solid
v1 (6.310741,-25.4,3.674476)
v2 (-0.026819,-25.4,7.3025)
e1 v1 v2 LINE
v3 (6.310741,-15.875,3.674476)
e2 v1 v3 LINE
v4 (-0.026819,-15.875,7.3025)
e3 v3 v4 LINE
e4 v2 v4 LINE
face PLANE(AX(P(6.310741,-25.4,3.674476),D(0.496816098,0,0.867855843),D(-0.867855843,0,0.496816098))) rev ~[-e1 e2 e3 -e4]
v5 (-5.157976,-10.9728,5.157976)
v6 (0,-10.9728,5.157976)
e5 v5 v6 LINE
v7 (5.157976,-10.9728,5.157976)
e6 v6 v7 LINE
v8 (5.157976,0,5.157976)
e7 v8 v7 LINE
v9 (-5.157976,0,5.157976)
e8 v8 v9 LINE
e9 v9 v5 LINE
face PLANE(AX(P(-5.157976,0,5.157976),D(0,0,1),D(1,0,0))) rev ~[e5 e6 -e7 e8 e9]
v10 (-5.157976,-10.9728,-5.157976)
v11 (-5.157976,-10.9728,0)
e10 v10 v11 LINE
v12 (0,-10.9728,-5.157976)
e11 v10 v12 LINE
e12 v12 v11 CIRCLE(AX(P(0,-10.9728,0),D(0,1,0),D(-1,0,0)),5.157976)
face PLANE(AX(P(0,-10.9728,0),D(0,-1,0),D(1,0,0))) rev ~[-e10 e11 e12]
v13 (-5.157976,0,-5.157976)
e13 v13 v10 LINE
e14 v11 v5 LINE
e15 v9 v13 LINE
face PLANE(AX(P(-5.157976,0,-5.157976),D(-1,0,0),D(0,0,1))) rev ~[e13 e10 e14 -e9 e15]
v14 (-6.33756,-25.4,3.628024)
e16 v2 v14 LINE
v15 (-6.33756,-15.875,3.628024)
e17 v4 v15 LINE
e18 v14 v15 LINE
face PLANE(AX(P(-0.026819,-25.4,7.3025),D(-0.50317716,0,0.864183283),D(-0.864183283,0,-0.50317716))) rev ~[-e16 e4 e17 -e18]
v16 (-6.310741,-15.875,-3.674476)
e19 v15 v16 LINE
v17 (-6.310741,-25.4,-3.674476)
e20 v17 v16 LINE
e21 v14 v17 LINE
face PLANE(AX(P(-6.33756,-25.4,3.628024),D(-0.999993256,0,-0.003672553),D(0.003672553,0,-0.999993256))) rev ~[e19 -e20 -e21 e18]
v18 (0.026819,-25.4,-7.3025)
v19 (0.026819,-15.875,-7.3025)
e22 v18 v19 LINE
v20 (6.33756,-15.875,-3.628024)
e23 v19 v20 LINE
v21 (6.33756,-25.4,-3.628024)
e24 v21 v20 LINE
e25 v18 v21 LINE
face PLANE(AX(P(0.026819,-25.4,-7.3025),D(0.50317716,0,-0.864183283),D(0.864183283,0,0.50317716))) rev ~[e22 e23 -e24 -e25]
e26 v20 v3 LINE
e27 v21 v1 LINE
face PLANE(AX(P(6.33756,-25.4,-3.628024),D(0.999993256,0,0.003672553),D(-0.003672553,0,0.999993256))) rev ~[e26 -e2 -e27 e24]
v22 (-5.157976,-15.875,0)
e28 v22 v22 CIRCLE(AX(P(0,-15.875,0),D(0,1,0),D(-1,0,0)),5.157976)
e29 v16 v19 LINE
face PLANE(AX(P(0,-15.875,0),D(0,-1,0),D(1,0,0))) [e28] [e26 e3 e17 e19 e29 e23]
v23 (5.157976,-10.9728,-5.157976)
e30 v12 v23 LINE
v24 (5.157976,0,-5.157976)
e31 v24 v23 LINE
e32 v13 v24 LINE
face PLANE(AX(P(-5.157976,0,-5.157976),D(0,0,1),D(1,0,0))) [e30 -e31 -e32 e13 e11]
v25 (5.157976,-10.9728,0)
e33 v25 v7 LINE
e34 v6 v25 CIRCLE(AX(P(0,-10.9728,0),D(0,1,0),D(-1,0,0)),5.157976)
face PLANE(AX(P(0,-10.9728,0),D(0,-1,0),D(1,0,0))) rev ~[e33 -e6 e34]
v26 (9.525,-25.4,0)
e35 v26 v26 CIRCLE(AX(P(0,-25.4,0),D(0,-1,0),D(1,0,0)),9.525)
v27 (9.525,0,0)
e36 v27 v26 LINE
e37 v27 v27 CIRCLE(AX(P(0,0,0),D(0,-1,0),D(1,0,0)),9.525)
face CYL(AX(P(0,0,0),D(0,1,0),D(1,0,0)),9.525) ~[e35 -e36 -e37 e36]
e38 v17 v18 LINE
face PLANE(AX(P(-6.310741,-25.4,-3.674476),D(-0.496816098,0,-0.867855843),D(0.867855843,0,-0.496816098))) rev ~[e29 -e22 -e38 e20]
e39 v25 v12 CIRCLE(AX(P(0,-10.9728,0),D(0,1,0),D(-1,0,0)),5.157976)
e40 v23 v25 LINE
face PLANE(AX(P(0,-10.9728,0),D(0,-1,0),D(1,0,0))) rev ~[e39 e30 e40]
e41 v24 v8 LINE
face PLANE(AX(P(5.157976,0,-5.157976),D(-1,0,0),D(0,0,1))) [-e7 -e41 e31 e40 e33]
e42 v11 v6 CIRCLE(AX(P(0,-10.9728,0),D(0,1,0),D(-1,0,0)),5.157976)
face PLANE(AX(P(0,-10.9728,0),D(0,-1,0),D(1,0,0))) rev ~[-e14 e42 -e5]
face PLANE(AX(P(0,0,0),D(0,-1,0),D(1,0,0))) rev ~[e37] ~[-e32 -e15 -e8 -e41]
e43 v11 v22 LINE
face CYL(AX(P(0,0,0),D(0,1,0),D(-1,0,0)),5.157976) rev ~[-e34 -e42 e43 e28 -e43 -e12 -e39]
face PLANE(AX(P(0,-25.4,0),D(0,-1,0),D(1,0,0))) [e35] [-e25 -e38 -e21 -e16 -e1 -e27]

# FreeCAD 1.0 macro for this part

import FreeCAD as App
import Part
import Sketcher

V = App.Vector
Q = App.Units.Quantity

doc = App.newDocument("Part")
params = doc.addObject("Spreadsheet::Sheet", "Params")
for row, (alias, value) in enumerate([
    ("sketch1_diameter", "0.75 in"),
    ("pad1_length", "1 in"),
    ("pocket1_length", "0.375 in"),
    ("pocket2_length", "0.432 in"),
], start=1):
    params.set(f"A{row}", alias)
    params.set(f"B{row}", "=" + value)
    params.setAlias(f"B{row}", alias)

body = doc.addObject("PartDesign::Body", "Body")

# Sketch on XZ plane
sketch1 = body.newObject("Sketcher::SketchObject", "Sketch")
sketch1.AttachmentSupport = (doc.getObject("XZ_Plane"), [""])
sketch1.MapMode = "FlatFace"
sketch1.addGeometry(Part.Circle(V(0, 0, 0), V(0, 0, 1), 9.525), False)
sketch1.addConstraint(Sketcher.Constraint("Coincident", 0, 3, -1, 1))
sketch1.addConstraint(Sketcher.Constraint("Diameter", 0, Q("0.75 in")))
sketch1.setExpression("Constraints[1]", "Params.sketch1_diameter")
pad1 = body.newObject("PartDesign::Pad", "Pad")
pad1.Profile = sketch1
pad1.setExpression("Length", "Params.pad1_length")

# Sketch on XZ plane
sketch2 = body.newObject("Sketcher::SketchObject", "Sketch001")
sketch2.AttachmentSupport = (doc.getObject("XZ_Plane"), [""])
sketch2.MapMode = "FlatFace"
sketch2.AttachmentOffset = App.Placement(V(0, 0, 1 * 25.4), App.Rotation())
sketch2.addGeometry(Part.LineSegment(V(6.310741, 3.674476, 0), V(-0.026819, 7.3025, 0)), False)
sketch2.addGeometry(Part.LineSegment(V(-0.026819, 7.3025, 0), V(-6.33756, 3.628024, 0)), False)
sketch2.addGeometry(Part.LineSegment(V(-6.33756, 3.628024, 0), V(-6.310741, -3.674476, 0)), False)
sketch2.addGeometry(Part.LineSegment(V(-6.310741, -3.674476, 0), V(0.026819, -7.3025, 0)), False)
sketch2.addGeometry(Part.LineSegment(V(0.026819, -7.3025, 0), V(6.33756, -3.628024, 0)), False)
sketch2.addGeometry(Part.LineSegment(V(6.33756, -3.628024, 0), V(6.310741, 3.674476, 0)), False)
sketch2.addConstraint(Sketcher.Constraint("Coincident", 0, 2, 1, 1))
sketch2.addConstraint(Sketcher.Constraint("Coincident", 1, 2, 2, 1))
sketch2.addConstraint(Sketcher.Constraint("Coincident", 2, 2, 3, 1))
sketch2.addConstraint(Sketcher.Constraint("Coincident", 3, 2, 4, 1))
sketch2.addConstraint(Sketcher.Constraint("Coincident", 4, 2, 5, 1))
sketch2.addConstraint(Sketcher.Constraint("Coincident", 5, 2, 0, 1))
sketch2.addConstraint(Sketcher.Constraint("Symmetric", 0, 2, 3, 2, -1, 1))
sketch2.addConstraint(Sketcher.Constraint("Symmetric", 1, 2, 4, 2, -1, 1))
sketch2.addConstraint(Sketcher.Constraint("Symmetric", 2, 2, 5, 2, -1, 1))
sketch2.addConstraint(Sketcher.Constraint("Equal", 0, 1))
sketch2.addConstraint(Sketcher.Constraint("Equal", 1, 2))
sketch2.addConstraint(Sketcher.Constraint("DistanceY", 3, 2, 0, 2, Q("0.575 in")))
sketch2.addConstraint(Sketcher.Constraint("DistanceY", 2, 2, 1, 2, Q("0.2875 in")))
sketch2.addConstraint(Sketcher.Constraint("DistanceX", 2, 2, 4, 2, 12.648301))
sketch2.addConstraint(Sketcher.Constraint("DistanceX", 0, 2, -1, 1, 0.026819))
pocket1 = body.newObject("PartDesign::Pocket", "Pocket")
pocket1.Profile = sketch2
pocket1.setExpression("Length", "Params.pocket1_length")

# Sketch on XZ plane
sketch3 = body.newObject("Sketcher::SketchObject", "Sketch002")
sketch3.AttachmentSupport = (doc.getObject("XZ_Plane"), [""])
sketch3.MapMode = "FlatFace"
sketch3.addGeometry(Part.LineSegment(V(-5.157976, 5.157976, 0), V(-5.157976, -5.157976, 0)), False)
sketch3.addGeometry(Part.LineSegment(V(-5.157976, -5.157976, 0), V(5.157976, -5.157976, 0)), False)
sketch3.addGeometry(Part.LineSegment(V(5.157976, -5.157976, 0), V(5.157976, 5.157976, 0)), False)
sketch3.addGeometry(Part.LineSegment(V(5.157976, 5.157976, 0), V(-5.157976, 5.157976, 0)), False)
sketch3.addConstraint(Sketcher.Constraint("Coincident", 0, 2, 1, 1))
sketch3.addConstraint(Sketcher.Constraint("Coincident", 1, 2, 2, 1))
sketch3.addConstraint(Sketcher.Constraint("Coincident", 2, 2, 3, 1))
sketch3.addConstraint(Sketcher.Constraint("Coincident", 3, 2, 0, 1))
sketch3.addConstraint(Sketcher.Constraint("Vertical", 0))
sketch3.addConstraint(Sketcher.Constraint("Horizontal", 1))
sketch3.addConstraint(Sketcher.Constraint("Vertical", 2))
sketch3.addConstraint(Sketcher.Constraint("Horizontal", 3))
sketch3.addConstraint(Sketcher.Constraint("Symmetric", 0, 2, 2, 2, -1, 1))
sketch3.addConstraint(Sketcher.Constraint("Equal", 3, 0))
sketch3.addConstraint(Sketcher.Constraint("DistanceX", 1, 1, 1, 2, 10.315952))
pocket2 = body.newObject("PartDesign::Pocket", "Pocket001")
pocket2.Profile = sketch3
pocket2.setExpression("Length", "Params.pocket2_length")
pocket2.Reversed = True

# Sketch on XZ plane
sketch4 = body.newObject("Sketcher::SketchObject", "Sketch003")
sketch4.AttachmentSupport = (doc.getObject("XZ_Plane"), [""])
sketch4.MapMode = "FlatFace"
sketch4.addGeometry(Part.Circle(V(0, 0, 0), V(0, 0, 1), 5.157976), False)
sketch4.addConstraint(Sketcher.Constraint("Coincident", 0, 3, -1, 1))
sketch4.addConstraint(Sketcher.Constraint("Diameter", 0, 10.315952))
pocket3 = body.newObject("PartDesign::Pocket", "Pocket002")
pocket3.Profile = sketch4
pocket3.Type = "ThroughAll"
pocket3.Reversed = True

doc.recompute()
